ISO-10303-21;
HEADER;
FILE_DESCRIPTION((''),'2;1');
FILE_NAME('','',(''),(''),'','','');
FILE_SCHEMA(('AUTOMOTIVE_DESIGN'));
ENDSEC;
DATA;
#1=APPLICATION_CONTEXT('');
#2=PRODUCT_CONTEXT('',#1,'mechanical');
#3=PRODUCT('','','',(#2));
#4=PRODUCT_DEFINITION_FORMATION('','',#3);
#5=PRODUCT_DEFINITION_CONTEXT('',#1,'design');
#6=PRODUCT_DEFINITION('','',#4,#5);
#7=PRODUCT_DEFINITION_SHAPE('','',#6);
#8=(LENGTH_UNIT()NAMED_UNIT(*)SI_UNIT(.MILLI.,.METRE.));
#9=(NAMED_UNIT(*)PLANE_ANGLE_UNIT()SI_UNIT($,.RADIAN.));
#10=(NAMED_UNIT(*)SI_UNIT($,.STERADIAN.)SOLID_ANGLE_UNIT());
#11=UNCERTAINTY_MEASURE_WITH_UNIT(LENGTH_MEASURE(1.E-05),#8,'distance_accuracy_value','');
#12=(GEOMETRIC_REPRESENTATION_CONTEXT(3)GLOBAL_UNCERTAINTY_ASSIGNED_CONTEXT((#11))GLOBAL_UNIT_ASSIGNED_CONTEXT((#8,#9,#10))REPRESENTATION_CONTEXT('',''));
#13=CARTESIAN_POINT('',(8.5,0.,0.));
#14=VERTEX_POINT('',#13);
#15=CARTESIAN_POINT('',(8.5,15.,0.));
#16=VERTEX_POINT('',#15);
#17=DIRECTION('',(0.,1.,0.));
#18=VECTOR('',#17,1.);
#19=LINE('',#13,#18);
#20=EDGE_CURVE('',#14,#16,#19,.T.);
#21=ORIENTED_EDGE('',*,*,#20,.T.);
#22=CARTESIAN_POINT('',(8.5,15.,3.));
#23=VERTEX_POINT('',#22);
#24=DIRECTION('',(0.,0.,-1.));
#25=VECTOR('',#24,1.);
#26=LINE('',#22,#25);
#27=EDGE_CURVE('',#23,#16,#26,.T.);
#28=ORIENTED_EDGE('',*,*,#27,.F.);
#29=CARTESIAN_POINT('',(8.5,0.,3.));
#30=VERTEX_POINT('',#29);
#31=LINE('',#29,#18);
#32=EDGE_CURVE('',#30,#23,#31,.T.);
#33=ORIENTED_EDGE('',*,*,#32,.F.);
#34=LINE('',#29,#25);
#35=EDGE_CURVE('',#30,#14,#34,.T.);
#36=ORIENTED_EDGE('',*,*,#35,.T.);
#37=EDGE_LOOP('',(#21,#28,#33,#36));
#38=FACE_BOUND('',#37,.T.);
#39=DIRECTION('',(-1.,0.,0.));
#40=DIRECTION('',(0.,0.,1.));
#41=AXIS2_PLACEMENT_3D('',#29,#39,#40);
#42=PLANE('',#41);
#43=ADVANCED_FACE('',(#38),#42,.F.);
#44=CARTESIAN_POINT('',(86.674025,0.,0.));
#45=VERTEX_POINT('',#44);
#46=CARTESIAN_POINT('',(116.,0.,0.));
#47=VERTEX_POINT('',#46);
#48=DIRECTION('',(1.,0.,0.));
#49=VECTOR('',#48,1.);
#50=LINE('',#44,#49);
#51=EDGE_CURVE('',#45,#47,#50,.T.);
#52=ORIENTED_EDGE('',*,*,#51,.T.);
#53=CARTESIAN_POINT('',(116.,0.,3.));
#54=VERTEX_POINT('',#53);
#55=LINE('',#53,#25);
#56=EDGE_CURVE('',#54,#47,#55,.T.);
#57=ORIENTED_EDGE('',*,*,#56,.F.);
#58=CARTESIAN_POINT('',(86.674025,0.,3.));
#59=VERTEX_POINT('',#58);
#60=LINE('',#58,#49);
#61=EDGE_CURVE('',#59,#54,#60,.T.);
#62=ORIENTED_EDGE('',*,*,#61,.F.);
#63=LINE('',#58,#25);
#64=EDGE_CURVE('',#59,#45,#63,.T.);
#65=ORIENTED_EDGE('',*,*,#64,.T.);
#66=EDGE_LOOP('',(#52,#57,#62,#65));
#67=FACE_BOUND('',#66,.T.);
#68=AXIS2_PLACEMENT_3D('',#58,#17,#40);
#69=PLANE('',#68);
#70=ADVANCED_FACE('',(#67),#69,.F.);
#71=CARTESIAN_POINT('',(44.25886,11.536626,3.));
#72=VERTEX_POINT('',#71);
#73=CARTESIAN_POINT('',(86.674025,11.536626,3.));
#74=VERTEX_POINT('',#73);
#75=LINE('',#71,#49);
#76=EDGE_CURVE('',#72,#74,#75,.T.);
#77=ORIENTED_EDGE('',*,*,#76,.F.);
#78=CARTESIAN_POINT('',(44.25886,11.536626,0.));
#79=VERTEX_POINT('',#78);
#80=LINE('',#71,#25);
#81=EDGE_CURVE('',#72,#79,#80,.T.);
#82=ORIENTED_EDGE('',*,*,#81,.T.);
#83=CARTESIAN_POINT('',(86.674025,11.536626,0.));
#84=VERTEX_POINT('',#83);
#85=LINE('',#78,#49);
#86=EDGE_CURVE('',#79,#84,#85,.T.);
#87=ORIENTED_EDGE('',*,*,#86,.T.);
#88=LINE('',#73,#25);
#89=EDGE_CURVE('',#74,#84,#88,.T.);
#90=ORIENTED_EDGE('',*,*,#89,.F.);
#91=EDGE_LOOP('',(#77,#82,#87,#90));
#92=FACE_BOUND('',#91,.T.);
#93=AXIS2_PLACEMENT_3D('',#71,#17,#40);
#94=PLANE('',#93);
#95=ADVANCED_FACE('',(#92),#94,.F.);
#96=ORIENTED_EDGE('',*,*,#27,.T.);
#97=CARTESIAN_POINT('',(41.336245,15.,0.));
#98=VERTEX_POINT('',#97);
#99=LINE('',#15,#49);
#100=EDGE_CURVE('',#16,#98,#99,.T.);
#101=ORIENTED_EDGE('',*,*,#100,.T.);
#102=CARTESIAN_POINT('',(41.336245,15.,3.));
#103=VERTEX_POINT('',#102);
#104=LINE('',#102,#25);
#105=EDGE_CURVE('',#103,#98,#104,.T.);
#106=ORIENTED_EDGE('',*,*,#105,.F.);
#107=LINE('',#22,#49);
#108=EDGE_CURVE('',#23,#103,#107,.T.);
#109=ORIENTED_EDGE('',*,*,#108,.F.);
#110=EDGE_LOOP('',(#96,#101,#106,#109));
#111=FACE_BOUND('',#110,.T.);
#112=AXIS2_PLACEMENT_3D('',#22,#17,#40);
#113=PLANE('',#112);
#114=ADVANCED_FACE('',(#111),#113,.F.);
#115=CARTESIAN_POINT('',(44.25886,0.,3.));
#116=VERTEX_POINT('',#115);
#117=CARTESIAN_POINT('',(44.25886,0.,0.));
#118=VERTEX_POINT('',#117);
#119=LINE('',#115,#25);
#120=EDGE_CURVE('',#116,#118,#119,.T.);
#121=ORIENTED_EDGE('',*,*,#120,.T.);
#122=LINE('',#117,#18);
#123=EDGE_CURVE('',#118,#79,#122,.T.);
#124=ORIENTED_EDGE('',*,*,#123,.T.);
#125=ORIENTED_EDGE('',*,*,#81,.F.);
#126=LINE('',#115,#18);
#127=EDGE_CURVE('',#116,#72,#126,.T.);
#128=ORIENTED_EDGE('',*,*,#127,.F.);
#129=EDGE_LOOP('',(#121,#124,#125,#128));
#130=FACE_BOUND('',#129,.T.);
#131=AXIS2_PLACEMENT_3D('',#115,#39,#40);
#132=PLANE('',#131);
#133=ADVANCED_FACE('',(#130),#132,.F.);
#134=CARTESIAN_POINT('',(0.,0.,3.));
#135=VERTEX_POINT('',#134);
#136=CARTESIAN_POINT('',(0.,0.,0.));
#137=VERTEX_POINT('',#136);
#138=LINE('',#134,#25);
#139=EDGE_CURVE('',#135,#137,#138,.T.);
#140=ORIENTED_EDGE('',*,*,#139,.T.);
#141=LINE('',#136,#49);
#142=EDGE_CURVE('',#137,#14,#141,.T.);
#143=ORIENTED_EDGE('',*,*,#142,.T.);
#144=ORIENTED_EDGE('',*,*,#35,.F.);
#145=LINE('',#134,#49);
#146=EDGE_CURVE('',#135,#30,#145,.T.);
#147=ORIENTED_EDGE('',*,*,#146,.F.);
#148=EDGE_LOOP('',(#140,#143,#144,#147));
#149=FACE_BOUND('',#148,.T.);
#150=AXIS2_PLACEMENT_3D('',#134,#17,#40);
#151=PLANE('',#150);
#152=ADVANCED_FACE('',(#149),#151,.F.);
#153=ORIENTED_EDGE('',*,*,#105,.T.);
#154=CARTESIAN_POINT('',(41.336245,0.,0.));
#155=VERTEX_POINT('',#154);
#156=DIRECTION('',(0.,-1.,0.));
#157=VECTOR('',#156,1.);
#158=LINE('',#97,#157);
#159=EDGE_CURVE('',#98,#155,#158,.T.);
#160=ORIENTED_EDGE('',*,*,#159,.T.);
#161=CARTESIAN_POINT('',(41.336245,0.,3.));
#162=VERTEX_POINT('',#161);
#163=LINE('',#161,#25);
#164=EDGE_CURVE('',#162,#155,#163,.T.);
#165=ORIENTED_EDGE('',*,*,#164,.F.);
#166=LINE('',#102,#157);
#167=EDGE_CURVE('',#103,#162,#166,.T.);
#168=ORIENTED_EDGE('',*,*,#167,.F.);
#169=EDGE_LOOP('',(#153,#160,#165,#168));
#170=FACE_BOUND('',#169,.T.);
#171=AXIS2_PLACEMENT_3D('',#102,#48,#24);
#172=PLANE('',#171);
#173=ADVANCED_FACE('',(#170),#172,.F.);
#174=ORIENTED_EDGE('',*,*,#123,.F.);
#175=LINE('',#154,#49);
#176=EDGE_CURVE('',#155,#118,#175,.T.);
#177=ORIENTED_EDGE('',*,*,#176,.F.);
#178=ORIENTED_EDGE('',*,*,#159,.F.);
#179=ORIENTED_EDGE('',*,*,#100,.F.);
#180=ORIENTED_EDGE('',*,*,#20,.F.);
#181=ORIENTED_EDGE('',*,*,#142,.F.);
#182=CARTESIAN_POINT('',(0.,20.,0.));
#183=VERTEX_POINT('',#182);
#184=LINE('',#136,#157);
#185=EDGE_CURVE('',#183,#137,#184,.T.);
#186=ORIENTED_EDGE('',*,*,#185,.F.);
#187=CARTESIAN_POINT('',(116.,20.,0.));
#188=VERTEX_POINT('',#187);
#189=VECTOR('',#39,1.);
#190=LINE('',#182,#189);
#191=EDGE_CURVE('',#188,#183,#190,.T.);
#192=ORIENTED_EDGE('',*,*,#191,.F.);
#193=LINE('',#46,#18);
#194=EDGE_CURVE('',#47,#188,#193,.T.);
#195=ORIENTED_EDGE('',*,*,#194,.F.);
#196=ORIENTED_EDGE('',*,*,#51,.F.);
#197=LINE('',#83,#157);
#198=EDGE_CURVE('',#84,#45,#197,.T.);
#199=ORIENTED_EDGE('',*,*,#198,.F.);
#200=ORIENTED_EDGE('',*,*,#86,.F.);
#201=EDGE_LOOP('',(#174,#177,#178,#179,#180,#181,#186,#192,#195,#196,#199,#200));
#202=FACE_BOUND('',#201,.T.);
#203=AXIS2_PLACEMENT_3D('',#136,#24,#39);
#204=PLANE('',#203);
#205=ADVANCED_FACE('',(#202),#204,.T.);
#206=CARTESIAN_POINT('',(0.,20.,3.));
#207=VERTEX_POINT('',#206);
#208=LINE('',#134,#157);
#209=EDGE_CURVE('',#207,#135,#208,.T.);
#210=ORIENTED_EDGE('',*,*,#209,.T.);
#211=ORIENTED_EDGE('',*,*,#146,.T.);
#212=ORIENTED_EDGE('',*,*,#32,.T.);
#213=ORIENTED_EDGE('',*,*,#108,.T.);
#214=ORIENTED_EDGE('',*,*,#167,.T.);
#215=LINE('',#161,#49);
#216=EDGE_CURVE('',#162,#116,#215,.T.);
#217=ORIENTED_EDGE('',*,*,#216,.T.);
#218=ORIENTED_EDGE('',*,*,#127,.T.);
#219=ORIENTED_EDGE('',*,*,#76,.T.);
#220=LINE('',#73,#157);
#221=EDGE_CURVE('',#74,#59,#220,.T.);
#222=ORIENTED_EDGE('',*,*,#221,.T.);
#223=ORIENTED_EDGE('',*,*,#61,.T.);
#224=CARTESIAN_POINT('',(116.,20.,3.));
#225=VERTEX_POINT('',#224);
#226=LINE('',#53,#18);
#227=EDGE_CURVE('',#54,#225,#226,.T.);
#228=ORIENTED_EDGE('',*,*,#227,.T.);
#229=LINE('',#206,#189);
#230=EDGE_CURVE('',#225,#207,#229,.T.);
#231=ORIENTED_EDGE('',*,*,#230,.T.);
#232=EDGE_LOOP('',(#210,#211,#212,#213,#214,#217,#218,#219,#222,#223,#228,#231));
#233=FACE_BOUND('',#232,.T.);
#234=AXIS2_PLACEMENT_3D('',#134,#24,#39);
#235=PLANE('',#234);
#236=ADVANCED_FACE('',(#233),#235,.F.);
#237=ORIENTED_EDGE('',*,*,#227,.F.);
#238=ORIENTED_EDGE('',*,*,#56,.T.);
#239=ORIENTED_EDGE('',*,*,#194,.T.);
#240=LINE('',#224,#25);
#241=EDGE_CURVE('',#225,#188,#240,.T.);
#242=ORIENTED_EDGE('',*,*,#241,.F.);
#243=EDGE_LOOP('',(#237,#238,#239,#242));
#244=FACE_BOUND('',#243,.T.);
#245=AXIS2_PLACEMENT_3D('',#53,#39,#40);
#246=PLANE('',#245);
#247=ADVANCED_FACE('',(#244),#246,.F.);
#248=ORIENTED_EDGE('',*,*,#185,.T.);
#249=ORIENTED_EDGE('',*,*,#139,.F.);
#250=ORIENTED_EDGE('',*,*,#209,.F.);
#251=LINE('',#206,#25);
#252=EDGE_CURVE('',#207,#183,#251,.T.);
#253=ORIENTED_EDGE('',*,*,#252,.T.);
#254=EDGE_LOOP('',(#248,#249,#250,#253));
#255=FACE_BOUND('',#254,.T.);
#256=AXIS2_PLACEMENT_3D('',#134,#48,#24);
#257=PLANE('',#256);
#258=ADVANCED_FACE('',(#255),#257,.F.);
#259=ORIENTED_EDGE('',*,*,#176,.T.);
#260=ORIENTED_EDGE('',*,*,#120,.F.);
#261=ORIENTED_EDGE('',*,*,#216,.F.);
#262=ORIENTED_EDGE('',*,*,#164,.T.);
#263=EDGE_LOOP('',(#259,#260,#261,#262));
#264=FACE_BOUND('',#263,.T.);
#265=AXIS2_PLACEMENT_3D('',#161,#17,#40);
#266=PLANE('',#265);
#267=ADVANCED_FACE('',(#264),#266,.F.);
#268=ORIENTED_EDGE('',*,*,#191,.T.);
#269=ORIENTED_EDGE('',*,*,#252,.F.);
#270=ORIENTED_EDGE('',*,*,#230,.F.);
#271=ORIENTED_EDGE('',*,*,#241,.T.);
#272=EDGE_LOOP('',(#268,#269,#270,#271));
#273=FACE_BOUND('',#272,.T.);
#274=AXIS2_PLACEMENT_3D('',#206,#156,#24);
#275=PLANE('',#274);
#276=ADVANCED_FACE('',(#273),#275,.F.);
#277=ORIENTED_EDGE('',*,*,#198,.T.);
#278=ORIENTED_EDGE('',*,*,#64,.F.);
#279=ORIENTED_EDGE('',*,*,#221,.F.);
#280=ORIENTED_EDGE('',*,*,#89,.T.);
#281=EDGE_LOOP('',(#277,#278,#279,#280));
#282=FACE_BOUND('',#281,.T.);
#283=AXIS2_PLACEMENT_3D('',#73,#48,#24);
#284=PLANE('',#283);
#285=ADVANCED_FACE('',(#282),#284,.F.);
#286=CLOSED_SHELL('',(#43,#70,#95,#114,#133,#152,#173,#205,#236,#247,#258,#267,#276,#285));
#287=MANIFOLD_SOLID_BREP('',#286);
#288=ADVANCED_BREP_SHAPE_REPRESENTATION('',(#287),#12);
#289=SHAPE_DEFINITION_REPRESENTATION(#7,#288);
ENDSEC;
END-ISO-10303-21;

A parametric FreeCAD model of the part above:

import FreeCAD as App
import Part
import Sketcher
from FreeCAD import Vector
Q = App.Units.Quantity


def add_polygon(sketch, points):
    """Adds a closed chain of lines whose ends are joined by coincident constraints."""
    first, n = sketch.GeometryCount, len(points)
    for a, b in zip(points, points[1:] + points[:1]):
        sketch.addGeometry(Part.LineSegment(App.Vector(*a, 0), App.Vector(*b, 0)), False)
    for i in range(n):
        sketch.addConstraint(Sketcher.Constraint("Coincident", first + i, 2, first + (i + 1) % n, 1))

doc = App.newDocument("Part")
params = doc.addObject("Spreadsheet::Sheet", "Params")
for row, (alias, value) in enumerate([
    ("sketch1_width", "116 mm"),
    ("sketch1_height", "15 mm"),
    ("sketch1_height2", "20 mm"),
    ("sketch1_width2", "8.5 mm"),
    ("pad1_length", "3 mm"),
], start=1):
    params.set(f"A{row}", alias)
    params.set(f"B{row}", "=" + value)
    params.setAlias(f"B{row}", alias)

body = doc.addObject("PartDesign::Body", "Body")

# Sketch on XY plane
sketch1 = body.newObject("Sketcher::SketchObject", "Sketch")
sketch1.AttachmentSupport = (doc.getObject("XY_Plane"), [""])
sketch1.MapMode = "FlatFace"
add_polygon(sketch1, [(0, 0), (8.5, 0), (8.5, 15), (41.3, 15), (41.3, 0), (44.3, 0), (44.3, 11.5), (86.7, 11.5), (86.7, 0), (116, 0), (116, 20), (0, 20)])  # lines 0-11
sketch1.addConstraint([
    Sketcher.Constraint("Horizontal", 0),
    Sketcher.Constraint("Vertical", 1),
    Sketcher.Constraint("Horizontal", 2),
    Sketcher.Constraint("Vertical", 3),
    Sketcher.Constraint("Horizontal", 4),
    Sketcher.Constraint("Vertical", 5),
    Sketcher.Constraint("Horizontal", 6),
    Sketcher.Constraint("Vertical", 7),
    Sketcher.Constraint("Horizontal", 8),
    Sketcher.Constraint("Vertical", 9),
    Sketcher.Constraint("Horizontal", 10),
    Sketcher.Constraint("Vertical", 11),
    Sketcher.Constraint("Coincident", 11, 2, -1, 1),
    Sketcher.Constraint("PointOnObject", 3, 2, -1),
    Sketcher.Constraint("PointOnObject", 7, 2, -1),
    Sketcher.Constraint("DistanceX", 10, 2, 10, 1, Q("116 mm")),
    Sketcher.Constraint("DistanceY", 1, 1, 1, 2, Q("15 mm")),
    Sketcher.Constraint("DistanceY", 9, 1, 9, 2, Q("20 mm")),
    Sketcher.Constraint("DistanceX", 0, 1, 0, 2, Q("8.5 mm")),
    Sketcher.Constraint("DistanceX", 2, 1, 2, 2, Q("32.836245 mm")),
    Sketcher.Constraint("DistanceX", 4, 1, 4, 2, Q("2.922615 mm")),
    Sketcher.Constraint("DistanceX", 6, 1, 6, 2, Q("42.415166 mm")),
    Sketcher.Constraint("DistanceY", 5, 1, 5, 2, Q("11.536626 mm")),
])
sketch1.setExpression("Constraints[27]", "Params.sketch1_width")
sketch1.setExpression("Constraints[28]", "Params.sketch1_height")
sketch1.setExpression("Constraints[29]", "Params.sketch1_height2")
sketch1.setExpression("Constraints[30]", "Params.sketch1_width2")
pad1 = body.newObject("PartDesign::Pad", "Pad")
pad1.Profile = sketch1
pad1.setExpression("Length", "Params.pad1_length")

doc.recompute()
